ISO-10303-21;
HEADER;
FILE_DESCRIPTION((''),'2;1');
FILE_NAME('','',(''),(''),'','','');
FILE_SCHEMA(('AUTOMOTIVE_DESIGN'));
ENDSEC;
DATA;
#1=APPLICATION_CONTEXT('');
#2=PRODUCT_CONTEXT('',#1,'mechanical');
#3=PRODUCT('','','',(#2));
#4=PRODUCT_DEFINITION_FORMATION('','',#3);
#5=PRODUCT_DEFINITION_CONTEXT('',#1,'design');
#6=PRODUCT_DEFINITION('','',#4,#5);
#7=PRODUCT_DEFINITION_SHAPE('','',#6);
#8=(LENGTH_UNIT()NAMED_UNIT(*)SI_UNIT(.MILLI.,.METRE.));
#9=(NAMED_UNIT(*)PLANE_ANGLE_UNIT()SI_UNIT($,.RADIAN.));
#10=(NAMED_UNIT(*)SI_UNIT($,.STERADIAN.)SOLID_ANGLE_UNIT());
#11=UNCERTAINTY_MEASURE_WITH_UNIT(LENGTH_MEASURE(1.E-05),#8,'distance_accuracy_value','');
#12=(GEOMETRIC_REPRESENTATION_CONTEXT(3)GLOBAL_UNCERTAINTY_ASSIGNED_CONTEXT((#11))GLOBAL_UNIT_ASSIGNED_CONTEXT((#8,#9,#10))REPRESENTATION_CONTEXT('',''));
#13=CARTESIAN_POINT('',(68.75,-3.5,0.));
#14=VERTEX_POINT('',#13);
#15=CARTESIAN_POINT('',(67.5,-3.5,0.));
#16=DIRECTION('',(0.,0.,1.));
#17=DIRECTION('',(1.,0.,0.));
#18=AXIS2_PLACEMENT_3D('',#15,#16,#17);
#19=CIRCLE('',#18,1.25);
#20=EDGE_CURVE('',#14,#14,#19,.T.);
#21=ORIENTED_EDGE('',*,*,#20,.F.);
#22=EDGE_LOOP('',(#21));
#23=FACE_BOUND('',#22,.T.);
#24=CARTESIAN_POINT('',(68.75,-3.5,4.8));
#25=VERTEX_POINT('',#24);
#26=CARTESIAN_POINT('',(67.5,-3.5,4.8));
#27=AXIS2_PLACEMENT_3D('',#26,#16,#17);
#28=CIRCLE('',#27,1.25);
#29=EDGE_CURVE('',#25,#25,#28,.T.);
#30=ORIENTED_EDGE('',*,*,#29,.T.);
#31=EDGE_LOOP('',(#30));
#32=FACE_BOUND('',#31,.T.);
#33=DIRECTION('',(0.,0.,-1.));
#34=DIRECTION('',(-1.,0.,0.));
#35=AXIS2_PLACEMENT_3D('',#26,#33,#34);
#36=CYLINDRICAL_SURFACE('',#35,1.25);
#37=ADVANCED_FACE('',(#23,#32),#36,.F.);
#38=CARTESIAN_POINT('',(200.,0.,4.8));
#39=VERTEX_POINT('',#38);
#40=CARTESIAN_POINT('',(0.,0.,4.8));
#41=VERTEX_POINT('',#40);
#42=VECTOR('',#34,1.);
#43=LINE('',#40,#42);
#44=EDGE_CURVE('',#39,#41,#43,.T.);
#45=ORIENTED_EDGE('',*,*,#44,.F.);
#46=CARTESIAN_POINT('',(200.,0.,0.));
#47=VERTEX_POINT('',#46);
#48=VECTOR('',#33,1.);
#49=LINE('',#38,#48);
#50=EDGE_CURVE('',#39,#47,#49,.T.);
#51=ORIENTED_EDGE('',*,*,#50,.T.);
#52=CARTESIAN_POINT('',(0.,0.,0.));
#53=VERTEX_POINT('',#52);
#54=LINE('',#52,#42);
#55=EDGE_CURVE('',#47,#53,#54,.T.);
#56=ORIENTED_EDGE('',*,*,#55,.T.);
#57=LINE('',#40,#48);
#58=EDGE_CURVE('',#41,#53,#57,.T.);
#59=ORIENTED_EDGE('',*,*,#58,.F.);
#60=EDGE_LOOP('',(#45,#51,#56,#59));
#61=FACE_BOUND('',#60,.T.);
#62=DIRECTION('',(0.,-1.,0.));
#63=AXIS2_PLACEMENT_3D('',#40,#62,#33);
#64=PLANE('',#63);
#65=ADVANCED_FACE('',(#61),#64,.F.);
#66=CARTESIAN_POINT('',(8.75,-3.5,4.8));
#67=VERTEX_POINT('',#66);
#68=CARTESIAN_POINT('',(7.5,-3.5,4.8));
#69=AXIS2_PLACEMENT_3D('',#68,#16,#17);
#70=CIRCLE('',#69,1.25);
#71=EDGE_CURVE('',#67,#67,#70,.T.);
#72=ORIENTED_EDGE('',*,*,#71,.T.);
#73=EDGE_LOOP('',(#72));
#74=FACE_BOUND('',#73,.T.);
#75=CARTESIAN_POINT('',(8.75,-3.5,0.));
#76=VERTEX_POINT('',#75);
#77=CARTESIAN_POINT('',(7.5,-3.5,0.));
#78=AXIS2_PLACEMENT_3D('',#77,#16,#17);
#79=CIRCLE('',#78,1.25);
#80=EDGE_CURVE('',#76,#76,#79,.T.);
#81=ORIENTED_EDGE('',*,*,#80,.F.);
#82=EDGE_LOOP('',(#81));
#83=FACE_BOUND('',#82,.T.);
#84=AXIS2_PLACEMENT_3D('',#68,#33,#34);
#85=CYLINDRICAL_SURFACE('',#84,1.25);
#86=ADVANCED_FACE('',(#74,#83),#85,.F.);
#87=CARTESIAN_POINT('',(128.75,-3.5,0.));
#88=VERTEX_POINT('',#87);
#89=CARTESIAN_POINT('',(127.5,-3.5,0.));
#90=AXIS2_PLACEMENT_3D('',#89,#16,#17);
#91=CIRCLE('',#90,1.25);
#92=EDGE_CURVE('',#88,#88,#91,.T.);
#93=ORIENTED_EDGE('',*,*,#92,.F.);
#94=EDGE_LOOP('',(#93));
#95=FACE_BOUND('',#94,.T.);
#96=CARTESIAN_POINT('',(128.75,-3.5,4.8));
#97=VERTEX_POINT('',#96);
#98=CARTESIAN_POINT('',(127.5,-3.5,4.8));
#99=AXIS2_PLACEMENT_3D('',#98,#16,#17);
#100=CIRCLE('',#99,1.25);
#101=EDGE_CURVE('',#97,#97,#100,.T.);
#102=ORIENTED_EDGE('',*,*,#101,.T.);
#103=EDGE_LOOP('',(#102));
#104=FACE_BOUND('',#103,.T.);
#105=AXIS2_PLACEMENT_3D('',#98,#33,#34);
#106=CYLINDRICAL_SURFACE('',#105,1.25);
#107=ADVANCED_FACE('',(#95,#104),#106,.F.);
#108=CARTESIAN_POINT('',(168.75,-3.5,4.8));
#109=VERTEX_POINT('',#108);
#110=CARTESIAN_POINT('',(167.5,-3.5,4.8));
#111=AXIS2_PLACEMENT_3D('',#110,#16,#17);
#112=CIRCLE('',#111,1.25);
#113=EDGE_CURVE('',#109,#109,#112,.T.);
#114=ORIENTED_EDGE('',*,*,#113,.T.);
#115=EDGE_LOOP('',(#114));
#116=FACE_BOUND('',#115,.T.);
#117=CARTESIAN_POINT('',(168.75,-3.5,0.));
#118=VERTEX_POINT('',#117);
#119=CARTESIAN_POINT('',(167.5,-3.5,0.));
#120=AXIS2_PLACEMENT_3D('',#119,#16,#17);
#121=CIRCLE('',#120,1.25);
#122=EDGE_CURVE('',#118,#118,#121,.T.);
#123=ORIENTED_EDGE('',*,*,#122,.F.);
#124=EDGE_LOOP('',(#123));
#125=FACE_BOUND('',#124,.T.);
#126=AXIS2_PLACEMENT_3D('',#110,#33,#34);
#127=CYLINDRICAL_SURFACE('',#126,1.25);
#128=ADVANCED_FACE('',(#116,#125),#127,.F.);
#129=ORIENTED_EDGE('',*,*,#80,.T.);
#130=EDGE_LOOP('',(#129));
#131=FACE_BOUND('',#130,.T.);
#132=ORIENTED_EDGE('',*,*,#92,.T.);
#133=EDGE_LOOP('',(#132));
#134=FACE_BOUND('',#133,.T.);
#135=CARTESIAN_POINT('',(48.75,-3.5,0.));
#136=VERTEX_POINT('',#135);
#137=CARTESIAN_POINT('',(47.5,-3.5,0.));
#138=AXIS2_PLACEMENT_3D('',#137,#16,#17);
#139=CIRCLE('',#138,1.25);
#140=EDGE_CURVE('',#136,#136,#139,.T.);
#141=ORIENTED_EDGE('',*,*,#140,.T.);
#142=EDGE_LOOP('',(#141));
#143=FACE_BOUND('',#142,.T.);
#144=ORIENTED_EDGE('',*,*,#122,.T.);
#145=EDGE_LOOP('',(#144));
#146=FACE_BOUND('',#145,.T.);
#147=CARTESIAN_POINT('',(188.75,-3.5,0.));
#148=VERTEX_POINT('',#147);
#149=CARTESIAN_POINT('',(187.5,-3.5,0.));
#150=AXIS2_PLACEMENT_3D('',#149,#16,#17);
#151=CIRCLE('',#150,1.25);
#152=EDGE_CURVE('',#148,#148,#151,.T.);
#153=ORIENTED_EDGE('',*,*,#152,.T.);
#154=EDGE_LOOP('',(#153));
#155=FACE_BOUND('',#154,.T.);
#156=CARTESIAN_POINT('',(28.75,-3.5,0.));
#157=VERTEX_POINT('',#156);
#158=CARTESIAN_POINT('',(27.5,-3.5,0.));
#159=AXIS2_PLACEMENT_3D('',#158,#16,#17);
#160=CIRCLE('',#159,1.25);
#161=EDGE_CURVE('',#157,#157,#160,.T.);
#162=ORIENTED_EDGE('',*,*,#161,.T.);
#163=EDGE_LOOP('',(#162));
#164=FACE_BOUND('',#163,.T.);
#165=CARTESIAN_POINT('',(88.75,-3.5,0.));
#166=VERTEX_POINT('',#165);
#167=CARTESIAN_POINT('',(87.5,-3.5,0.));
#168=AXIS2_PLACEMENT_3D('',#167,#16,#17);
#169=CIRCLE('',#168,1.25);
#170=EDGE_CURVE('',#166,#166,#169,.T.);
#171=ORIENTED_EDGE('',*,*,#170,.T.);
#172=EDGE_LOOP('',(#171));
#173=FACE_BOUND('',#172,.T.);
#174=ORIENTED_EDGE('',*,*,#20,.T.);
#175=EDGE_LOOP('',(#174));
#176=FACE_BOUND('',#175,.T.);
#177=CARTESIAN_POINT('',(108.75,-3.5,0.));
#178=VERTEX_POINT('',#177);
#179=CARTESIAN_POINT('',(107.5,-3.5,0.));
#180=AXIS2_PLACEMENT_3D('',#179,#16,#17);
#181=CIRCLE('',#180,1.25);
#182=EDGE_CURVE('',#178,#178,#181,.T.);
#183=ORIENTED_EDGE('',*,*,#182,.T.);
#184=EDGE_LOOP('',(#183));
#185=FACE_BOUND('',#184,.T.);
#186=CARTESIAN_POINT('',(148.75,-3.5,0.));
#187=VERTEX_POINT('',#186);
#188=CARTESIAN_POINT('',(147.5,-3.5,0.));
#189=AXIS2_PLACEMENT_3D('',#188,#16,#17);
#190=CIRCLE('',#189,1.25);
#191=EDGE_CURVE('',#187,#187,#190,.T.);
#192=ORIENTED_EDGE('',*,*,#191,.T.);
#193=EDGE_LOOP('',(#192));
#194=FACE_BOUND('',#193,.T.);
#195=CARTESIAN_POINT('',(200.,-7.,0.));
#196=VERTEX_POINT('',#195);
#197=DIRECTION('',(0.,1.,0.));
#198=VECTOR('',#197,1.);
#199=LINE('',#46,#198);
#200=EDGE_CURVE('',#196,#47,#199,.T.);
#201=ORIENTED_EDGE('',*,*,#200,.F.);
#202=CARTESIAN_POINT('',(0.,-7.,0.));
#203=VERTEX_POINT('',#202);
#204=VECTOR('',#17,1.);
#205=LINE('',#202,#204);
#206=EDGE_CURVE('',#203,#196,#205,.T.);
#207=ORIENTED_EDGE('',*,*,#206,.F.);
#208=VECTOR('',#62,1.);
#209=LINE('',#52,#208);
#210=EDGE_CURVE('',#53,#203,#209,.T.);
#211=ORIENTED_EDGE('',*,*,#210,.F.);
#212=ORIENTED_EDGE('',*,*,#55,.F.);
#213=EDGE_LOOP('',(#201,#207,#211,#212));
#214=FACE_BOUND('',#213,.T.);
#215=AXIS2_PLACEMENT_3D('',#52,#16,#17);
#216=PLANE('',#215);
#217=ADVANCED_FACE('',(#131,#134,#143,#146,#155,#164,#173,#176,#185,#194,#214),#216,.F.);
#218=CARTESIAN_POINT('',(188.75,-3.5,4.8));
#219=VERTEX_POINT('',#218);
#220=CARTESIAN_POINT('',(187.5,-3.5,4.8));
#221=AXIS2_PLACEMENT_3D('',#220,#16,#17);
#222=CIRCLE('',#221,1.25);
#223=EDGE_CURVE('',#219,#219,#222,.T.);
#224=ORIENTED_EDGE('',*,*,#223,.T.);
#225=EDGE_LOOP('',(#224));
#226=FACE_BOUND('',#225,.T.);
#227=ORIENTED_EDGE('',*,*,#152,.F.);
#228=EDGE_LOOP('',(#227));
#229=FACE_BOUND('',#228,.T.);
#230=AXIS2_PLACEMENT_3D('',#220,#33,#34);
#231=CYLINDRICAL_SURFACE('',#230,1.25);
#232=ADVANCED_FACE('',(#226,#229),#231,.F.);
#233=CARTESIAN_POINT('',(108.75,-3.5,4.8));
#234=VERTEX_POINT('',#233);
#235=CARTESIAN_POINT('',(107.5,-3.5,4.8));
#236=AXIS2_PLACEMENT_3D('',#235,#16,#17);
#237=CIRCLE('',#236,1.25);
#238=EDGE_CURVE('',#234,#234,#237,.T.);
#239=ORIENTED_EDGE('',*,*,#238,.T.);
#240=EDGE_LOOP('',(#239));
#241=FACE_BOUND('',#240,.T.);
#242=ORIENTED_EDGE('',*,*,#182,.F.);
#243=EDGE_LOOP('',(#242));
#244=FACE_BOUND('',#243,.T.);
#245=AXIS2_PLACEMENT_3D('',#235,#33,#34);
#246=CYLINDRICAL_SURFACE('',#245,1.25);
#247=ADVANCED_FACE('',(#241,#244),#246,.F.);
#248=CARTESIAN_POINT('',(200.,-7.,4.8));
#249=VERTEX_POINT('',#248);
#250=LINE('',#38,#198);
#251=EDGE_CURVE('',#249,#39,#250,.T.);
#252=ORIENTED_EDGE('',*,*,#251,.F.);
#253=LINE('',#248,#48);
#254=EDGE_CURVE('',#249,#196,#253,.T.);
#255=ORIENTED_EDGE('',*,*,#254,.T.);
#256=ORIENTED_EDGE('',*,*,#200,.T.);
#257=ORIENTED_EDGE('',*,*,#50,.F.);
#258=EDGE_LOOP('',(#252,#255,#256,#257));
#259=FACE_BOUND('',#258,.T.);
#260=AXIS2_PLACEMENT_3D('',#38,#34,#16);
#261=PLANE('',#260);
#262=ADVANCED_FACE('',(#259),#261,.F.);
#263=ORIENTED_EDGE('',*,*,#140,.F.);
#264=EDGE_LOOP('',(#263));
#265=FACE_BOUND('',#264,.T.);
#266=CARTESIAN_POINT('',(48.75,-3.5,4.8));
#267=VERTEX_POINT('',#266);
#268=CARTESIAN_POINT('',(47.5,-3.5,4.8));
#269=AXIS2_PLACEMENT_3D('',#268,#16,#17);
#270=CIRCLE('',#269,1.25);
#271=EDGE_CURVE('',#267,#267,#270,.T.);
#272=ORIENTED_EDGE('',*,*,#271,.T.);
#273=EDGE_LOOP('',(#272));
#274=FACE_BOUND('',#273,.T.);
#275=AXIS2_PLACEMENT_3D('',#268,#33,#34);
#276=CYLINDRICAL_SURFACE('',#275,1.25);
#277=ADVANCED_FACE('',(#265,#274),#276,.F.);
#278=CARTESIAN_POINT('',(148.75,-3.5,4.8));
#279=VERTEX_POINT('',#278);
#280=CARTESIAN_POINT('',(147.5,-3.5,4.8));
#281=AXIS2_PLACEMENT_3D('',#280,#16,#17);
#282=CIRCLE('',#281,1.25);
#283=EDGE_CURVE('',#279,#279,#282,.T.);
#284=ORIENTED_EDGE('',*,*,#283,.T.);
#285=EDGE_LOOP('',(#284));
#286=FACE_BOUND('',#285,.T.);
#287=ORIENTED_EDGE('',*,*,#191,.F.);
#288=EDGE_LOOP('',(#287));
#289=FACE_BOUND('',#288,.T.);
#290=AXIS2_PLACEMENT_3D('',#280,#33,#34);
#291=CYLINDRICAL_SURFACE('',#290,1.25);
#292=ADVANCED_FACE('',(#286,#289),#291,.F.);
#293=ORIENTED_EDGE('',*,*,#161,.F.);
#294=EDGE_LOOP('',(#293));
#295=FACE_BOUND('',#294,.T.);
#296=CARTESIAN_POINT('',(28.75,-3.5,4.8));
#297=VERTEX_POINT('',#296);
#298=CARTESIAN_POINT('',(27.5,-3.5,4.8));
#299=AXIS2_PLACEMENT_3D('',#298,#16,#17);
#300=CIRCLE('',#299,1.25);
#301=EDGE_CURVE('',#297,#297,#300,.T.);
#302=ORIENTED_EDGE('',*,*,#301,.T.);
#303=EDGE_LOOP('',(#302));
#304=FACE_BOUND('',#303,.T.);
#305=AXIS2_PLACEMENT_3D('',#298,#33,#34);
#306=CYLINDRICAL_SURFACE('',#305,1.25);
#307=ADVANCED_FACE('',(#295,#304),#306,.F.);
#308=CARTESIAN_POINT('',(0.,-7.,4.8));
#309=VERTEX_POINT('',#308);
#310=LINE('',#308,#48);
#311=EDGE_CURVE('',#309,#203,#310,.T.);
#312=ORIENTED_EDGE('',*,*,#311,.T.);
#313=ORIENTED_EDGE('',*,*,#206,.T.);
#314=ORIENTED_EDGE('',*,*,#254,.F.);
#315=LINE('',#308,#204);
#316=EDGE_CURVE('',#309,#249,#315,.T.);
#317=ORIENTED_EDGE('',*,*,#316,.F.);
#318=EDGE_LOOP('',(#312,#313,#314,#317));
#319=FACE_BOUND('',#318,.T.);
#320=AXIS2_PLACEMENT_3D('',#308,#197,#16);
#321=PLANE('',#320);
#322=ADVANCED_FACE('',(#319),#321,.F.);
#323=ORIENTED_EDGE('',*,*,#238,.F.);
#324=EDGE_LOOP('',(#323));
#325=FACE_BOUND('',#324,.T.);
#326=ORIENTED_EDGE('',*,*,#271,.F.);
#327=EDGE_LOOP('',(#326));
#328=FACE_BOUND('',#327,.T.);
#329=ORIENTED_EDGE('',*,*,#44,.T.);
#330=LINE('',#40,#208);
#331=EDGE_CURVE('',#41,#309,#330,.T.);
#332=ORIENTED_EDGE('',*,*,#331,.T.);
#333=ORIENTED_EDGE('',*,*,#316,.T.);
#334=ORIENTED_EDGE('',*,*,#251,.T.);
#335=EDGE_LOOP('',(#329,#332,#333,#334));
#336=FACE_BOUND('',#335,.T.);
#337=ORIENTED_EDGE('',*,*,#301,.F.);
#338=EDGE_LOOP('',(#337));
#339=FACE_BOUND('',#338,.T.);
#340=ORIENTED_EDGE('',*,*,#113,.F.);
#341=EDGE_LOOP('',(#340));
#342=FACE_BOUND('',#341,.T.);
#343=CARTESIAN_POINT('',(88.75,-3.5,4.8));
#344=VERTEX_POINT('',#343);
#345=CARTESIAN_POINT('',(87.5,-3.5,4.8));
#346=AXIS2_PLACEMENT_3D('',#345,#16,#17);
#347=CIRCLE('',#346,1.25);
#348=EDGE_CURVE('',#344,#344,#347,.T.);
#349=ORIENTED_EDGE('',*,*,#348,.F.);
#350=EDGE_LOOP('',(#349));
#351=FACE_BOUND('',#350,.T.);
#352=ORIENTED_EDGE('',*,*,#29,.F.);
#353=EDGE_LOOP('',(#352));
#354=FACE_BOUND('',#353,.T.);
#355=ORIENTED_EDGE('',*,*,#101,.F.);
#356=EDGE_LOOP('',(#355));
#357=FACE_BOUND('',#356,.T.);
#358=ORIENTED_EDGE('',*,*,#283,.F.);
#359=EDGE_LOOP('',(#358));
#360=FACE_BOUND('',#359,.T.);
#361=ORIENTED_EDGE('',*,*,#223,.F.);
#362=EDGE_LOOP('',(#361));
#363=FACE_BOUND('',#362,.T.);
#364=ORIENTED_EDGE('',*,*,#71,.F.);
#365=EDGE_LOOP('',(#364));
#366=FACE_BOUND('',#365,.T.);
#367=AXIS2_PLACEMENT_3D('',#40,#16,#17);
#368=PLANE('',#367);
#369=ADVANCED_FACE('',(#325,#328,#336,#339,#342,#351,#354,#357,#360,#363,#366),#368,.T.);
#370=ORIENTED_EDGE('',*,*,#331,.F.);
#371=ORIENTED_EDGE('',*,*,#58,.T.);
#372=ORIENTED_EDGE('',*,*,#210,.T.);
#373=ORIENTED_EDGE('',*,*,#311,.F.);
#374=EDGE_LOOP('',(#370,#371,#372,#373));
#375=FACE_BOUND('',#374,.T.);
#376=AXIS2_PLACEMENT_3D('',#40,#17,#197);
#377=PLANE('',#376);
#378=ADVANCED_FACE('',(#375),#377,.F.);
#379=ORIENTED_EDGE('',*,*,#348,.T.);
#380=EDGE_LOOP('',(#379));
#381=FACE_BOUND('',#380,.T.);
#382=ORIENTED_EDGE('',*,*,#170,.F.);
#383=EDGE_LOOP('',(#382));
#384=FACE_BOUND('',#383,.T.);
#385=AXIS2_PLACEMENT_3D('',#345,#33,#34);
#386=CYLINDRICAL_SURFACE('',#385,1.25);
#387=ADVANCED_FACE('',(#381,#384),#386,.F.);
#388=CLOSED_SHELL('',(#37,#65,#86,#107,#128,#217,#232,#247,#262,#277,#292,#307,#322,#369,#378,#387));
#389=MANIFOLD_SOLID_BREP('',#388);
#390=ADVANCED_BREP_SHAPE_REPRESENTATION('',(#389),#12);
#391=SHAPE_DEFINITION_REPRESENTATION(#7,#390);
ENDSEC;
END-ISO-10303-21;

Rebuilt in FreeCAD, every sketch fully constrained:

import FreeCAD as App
import Part
import Sketcher

V = App.Vector

doc = App.newDocument("Part")
body = doc.addObject("PartDesign::Body", "Body")

sketch1 = body.newObject("Sketcher::SketchObject", "Sketch")
sketch1.AttachmentSupport = (doc.getObject("XY_Plane"), [""])
sketch1.MapMode = "FlatFace"
sketch1.addGeometry([
    Part.LineSegment(V(0, 0, 0), V(0, -7, 0)),
    Part.LineSegment(V(0, -7, 0), V(200, -7, 0)),
    Part.LineSegment(V(200, -7, 0), V(200, 0, 0)),
    Part.LineSegment(V(200, 0, 0), V(0, 0, 0)),
    Part.Circle(V(7.5, -3.5, 0), V(0, 0, 1), 1.2),
    Part.Circle(V(27.5, -3.5, 0), V(0, 0, 1), 1.2),
    Part.Circle(V(47.5, -3.5, 0), V(0, 0, 1), 1.2),
    Part.Circle(V(67.5, -3.5, 0), V(0, 0, 1), 1.2),
    Part.Circle(V(87.5, -3.5, 0), V(0, 0, 1), 1.2),
    Part.Circle(V(107.5, -3.5, 0), V(0, 0, 1), 1.2),
    Part.Circle(V(127.5, -3.5, 0), V(0, 0, 1), 1.2),
    Part.Circle(V(147.5, -3.5, 0), V(0, 0, 1), 1.2),
    Part.Circle(V(167.5, -3.5, 0), V(0, 0, 1), 1.2),
    Part.Circle(V(187.5, -3.5, 0), V(0, 0, 1), 1.2),
], False)
sketch1.addConstraint([
    Sketcher.Constraint("Coincident", 0, 2, 1, 1),
    Sketcher.Constraint("Coincident", 1, 2, 2, 1),
    Sketcher.Constraint("Coincident", 2, 2, 3, 1),
    Sketcher.Constraint("Coincident", 3, 2, 0, 1),
    Sketcher.Constraint("Vertical", 0),
    Sketcher.Constraint("Horizontal", 1),
    Sketcher.Constraint("Vertical", 2),
    Sketcher.Constraint("Horizontal", 3),
    Sketcher.Constraint("Coincident", 3, 2, -1, 1),
    Sketcher.Constraint("Equal", 4, 5),
    Sketcher.Constraint("Equal", 5, 6),
    Sketcher.Constraint("Equal", 6, 7),
    Sketcher.Constraint("Equal", 7, 8),
    Sketcher.Constraint("Equal", 8, 9),
    Sketcher.Constraint("Equal", 9, 10),
    Sketcher.Constraint("Equal", 10, 11),
    Sketcher.Constraint("Equal", 11, 12),
    Sketcher.Constraint("Equal", 12, 13),
    Sketcher.Constraint("Horizontal", 4, 3, 5, 3),
    Sketcher.Constraint("Horizontal", 5, 3, 6, 3),
    Sketcher.Constraint("Horizontal", 6, 3, 7, 3),
    Sketcher.Constraint("Horizontal", 7, 3, 8, 3),
    Sketcher.Constraint("Horizontal", 8, 3, 9, 3),
    Sketcher.Constraint("Horizontal", 9, 3, 10, 3),
    Sketcher.Constraint("Horizontal", 10, 3, 11, 3),
    Sketcher.Constraint("Horizontal", 11, 3, 12, 3),
    Sketcher.Constraint("Horizontal", 12, 3, 13, 3),
    Sketcher.Constraint("Diameter", 4, 2.5),
    Sketcher.Constraint("DistanceX", 1, 1, 1, 2, 200.0),
    Sketcher.Constraint("DistanceY", 0, 2, 0, 1, 7.0),
    Sketcher.Constraint("DistanceX", 4, 3, 5, 3, 20.0),
    Sketcher.Constraint("DistanceX", 5, 3, 6, 3, 20.0),
    Sketcher.Constraint("DistanceX", 6, 3, 7, 3, 20.0),
    Sketcher.Constraint("DistanceX", 7, 3, 8, 3, 20.0),
    Sketcher.Constraint("DistanceX", 8, 3, 9, 3, 20.0),
    Sketcher.Constraint("DistanceX", 9, 3, 10, 3, 20.0),
    Sketcher.Constraint("DistanceX", 10, 3, 11, 3, 20.0),
    Sketcher.Constraint("DistanceX", 11, 3, 12, 3, 20.0),
    Sketcher.Constraint("DistanceX", 12, 3, 13, 3, 20.0),
    Sketcher.Constraint("DistanceX", -1, 1, 4, 3, 7.5),
    Sketcher.Constraint("DistanceY", 4, 3, -1, 1, 3.5),
])
pad1 = body.newObject("PartDesign::Pad", "Pad")
pad1.Profile = sketch1
pad1.Length = 4.8

doc.recompute()
